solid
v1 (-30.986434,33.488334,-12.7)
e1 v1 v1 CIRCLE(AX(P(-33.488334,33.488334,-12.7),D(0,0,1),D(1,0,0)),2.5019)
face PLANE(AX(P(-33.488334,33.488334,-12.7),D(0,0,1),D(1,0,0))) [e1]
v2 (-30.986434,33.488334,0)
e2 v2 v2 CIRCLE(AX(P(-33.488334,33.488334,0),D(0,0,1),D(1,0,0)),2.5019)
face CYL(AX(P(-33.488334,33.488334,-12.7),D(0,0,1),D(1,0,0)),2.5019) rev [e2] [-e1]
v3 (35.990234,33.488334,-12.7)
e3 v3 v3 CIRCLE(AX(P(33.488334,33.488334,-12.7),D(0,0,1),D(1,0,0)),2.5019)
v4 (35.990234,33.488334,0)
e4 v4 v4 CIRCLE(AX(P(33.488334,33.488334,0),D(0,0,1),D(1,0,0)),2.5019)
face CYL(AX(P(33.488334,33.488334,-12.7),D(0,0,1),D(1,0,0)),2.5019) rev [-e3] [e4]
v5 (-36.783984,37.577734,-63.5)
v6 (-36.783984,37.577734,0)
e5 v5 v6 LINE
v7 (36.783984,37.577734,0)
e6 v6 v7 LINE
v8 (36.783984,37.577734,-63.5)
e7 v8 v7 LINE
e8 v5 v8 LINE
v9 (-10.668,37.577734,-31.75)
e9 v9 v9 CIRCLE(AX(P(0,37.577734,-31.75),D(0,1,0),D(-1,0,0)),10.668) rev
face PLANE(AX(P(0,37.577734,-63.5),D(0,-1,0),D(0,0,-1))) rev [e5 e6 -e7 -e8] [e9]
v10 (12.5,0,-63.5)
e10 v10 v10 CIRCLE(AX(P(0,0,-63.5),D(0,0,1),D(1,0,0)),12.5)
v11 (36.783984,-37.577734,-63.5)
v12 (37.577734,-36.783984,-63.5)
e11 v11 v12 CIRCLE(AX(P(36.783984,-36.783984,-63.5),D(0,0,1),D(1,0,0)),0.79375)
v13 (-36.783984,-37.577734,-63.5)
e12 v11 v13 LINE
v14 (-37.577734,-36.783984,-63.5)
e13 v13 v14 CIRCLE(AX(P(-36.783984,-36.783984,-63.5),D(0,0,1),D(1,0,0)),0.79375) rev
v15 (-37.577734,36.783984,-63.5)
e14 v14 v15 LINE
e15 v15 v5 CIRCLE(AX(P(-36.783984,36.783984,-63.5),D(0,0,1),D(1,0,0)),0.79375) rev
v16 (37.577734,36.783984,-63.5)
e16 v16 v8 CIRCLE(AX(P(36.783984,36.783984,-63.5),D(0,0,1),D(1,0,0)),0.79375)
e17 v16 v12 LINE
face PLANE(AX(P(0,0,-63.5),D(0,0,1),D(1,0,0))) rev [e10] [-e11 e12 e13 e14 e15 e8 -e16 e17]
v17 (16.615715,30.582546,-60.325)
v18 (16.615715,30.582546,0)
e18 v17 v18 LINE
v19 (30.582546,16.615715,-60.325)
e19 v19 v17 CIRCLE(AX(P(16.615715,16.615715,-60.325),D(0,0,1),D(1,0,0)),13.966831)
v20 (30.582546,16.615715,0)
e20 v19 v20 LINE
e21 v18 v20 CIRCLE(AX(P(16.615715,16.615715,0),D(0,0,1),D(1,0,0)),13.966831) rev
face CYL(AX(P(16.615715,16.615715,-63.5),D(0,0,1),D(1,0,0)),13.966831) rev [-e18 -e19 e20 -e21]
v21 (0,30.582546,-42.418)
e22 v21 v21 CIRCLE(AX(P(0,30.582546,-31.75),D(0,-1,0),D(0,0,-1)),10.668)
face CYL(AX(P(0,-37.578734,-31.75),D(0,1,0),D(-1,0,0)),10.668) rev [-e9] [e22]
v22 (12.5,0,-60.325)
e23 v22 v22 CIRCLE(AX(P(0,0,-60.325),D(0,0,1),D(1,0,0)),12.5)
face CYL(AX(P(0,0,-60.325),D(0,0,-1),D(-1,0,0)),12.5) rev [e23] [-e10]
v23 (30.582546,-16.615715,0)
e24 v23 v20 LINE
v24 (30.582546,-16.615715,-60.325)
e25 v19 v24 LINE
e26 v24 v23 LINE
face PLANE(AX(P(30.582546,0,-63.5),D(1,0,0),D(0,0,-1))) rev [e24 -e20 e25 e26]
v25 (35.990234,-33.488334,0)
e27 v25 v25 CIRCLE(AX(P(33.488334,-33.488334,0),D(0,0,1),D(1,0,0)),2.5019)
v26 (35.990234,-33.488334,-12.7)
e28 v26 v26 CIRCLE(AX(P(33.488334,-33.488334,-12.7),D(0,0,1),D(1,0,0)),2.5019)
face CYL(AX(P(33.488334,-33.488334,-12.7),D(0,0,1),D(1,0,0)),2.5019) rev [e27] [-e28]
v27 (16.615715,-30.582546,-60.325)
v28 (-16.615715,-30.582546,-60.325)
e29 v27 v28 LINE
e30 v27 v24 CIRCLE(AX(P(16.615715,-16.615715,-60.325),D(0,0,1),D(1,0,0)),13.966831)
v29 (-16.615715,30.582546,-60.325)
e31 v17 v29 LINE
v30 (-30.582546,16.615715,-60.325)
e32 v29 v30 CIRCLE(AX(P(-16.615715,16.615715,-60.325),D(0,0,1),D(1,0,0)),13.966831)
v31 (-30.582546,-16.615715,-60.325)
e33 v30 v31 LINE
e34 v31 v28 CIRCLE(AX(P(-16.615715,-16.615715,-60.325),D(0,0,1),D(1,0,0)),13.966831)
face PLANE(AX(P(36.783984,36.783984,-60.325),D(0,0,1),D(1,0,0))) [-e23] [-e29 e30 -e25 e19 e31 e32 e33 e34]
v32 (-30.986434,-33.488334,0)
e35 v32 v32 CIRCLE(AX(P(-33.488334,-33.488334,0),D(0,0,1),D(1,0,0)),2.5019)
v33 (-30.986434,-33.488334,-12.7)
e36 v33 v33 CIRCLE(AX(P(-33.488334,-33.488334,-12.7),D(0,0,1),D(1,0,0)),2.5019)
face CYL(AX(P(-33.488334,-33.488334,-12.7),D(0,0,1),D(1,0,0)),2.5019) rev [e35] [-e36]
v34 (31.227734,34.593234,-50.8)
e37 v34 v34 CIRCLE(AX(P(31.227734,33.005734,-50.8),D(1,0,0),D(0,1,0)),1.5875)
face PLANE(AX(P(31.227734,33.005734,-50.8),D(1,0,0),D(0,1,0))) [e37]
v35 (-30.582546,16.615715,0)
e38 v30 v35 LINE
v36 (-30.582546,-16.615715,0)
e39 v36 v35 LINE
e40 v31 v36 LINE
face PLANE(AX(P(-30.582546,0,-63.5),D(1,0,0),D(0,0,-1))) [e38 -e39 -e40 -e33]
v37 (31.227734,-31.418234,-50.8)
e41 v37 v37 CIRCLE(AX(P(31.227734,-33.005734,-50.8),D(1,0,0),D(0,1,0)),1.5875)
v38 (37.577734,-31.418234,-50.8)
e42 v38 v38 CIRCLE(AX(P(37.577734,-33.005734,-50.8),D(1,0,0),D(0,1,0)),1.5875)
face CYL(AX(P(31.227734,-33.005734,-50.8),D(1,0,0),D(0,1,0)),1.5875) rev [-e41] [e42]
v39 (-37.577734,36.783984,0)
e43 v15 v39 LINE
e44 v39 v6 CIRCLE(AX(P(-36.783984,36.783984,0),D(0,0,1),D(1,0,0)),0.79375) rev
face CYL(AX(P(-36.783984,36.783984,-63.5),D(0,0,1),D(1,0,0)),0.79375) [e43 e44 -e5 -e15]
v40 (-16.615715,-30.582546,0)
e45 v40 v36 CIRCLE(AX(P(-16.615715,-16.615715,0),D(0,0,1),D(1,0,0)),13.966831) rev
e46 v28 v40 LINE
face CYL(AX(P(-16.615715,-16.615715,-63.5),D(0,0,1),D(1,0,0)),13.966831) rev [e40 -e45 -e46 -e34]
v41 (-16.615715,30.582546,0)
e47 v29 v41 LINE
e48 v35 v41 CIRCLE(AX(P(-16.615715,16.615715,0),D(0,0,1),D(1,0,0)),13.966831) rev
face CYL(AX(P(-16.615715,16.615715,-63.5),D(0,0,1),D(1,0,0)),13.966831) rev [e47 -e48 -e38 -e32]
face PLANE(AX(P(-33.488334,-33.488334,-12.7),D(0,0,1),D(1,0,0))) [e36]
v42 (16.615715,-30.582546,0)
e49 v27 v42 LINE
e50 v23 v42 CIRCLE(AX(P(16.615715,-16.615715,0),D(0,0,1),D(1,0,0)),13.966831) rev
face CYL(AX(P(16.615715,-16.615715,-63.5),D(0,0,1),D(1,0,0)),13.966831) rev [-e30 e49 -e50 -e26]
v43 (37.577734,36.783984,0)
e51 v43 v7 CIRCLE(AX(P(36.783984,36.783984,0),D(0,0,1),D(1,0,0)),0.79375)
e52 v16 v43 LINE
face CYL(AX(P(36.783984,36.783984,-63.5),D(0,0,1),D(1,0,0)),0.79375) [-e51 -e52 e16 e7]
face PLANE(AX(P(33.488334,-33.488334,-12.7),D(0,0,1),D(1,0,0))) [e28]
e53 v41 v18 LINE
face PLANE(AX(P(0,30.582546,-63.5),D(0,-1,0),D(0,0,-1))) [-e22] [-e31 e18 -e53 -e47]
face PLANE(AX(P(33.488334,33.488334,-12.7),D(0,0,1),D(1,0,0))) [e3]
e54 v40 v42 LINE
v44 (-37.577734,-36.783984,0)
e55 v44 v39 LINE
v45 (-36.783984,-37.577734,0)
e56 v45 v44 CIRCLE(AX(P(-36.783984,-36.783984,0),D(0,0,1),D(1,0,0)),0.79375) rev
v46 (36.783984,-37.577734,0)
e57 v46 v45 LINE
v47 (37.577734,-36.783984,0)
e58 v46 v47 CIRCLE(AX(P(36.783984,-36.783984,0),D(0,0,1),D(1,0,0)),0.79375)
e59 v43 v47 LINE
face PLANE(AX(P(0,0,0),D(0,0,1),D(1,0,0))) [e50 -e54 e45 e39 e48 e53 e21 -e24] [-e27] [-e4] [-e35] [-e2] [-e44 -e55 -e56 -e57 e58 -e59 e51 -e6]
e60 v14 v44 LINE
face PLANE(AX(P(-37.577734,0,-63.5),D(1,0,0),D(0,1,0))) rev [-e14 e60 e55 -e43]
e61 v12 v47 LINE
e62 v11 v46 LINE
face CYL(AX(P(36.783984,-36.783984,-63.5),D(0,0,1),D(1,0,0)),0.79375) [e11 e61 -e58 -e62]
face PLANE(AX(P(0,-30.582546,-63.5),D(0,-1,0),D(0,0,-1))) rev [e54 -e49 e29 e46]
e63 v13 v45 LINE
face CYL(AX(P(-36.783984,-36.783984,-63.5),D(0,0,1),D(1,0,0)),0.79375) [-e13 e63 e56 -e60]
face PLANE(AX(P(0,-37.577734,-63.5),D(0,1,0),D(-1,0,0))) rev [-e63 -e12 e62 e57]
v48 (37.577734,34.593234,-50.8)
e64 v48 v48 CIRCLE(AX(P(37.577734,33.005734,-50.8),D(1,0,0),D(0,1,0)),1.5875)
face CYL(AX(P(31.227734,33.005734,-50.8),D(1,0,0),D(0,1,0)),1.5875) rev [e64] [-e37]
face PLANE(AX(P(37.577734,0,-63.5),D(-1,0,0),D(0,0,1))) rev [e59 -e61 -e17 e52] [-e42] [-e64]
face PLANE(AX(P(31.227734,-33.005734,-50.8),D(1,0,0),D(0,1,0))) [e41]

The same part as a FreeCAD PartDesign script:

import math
import FreeCAD as App
import Part
import Sketcher

V = App.Vector
Q = App.Units.Quantity

doc = App.newDocument("Part")
body = doc.addObject("PartDesign::Body", "Body")

# Sketch on XY plane
sketch1 = body.newObject("Sketcher::SketchObject", "Sketch")
sketch1.AttachmentSupport = (doc.getObject("XY_Plane"), [""])
sketch1.MapMode = "FlatFace"
sketch1.addGeometry([
    Part.LineSegment(V(37.6, -36.8, 0), V(37.6, 36.8, 0)),  # 0
    Part.ArcOfCircle(Part.Circle(V(36.8, 36.8, 0), V(0, 0, 1), 0.8), math.radians(0), math.radians(90)),  # 1
    Part.LineSegment(V(36.8, 37.6, 0), V(-36.8, 37.6, 0)),  # 2
    Part.ArcOfCircle(Part.Circle(V(-36.8, 36.8, 0), V(0, 0, 1), 0.8), math.radians(90), math.radians(180)),  # 3
    Part.LineSegment(V(-37.6, 36.8, 0), V(-37.6, -36.8, 0)),  # 4
    Part.ArcOfCircle(Part.Circle(V(-36.8, -36.8, 0), V(0, 0, 1), 0.8), math.radians(-180), math.radians(-90)),  # 5
    Part.LineSegment(V(-36.8, -37.6, 0), V(36.8, -37.6, 0)),  # 6
    Part.ArcOfCircle(Part.Circle(V(36.8, -36.8, 0), V(0, 0, 1), 0.8), math.radians(-90), math.radians(0)),  # 7
    Part.LineSegment(V(-16.6, 30.6, 0), V(16.6, 30.6, 0)),  # 8
    Part.ArcOfCircle(Part.Circle(V(16.6, 16.6, 0), V(0, 0, 1), 14), math.radians(0), math.radians(90)),  # 9
    Part.LineSegment(V(30.6, 16.6, 0), V(30.6, -16.6, 0)),  # 10
    Part.ArcOfCircle(Part.Circle(V(16.6, -16.6, 0), V(0, 0, 1), 14), math.radians(-90), math.radians(0)),  # 11
    Part.LineSegment(V(16.6, -30.6, 0), V(-16.6, -30.6, 0)),  # 12
    Part.ArcOfCircle(Part.Circle(V(-16.6, -16.6, 0), V(0, 0, 1), 14), math.radians(180), math.radians(270)),  # 13
    Part.LineSegment(V(-30.6, -16.6, 0), V(-30.6, 16.6, 0)),  # 14
    Part.ArcOfCircle(Part.Circle(V(-16.6, 16.6, 0), V(0, 0, 1), 14), math.radians(90), math.radians(180)),  # 15
], False)
sketch1.addConstraint([
    Sketcher.Constraint("Tangent", 0, 2, 1, 1),
    Sketcher.Constraint("Tangent", 1, 2, 2, 1),
    Sketcher.Constraint("Tangent", 2, 2, 3, 1),
    Sketcher.Constraint("Tangent", 3, 2, 4, 1),
    Sketcher.Constraint("Tangent", 4, 2, 5, 1),
    Sketcher.Constraint("Tangent", 5, 2, 6, 1),
    Sketcher.Constraint("Tangent", 6, 2, 7, 1),
    Sketcher.Constraint("Tangent", 7, 2, 0, 1),
    Sketcher.Constraint("Tangent", 8, 2, 9, 2),
    Sketcher.Constraint("Tangent", 9, 1, 10, 1),
    Sketcher.Constraint("Tangent", 10, 2, 11, 2),
    Sketcher.Constraint("Tangent", 11, 1, 12, 1),
    Sketcher.Constraint("Tangent", 12, 2, 13, 2),
    Sketcher.Constraint("Tangent", 13, 1, 14, 1),
    Sketcher.Constraint("Tangent", 14, 2, 15, 2),
    Sketcher.Constraint("Tangent", 15, 1, 8, 1),
    Sketcher.Constraint("Vertical", 0),
    Sketcher.Constraint("Horizontal", 2),
    Sketcher.Constraint("Vertical", 4),
    Sketcher.Constraint("Horizontal", 6),
    Sketcher.Constraint("Horizontal", 8),
    Sketcher.Constraint("Vertical", 10),
    Sketcher.Constraint("Horizontal", 12),
    Sketcher.Constraint("Vertical", 14),
    Sketcher.Constraint("Equal", 1, 3),
    Sketcher.Constraint("Equal", 3, 5),
    Sketcher.Constraint("Equal", 5, 7),
    Sketcher.Constraint("Equal", 9, 11),
    Sketcher.Constraint("Equal", 11, 13),
    Sketcher.Constraint("Equal", 13, 15),
    Sketcher.Constraint("Symmetric", 1, 3, 5, 3, -1, 1),
    Sketcher.Constraint("Symmetric", 9, 3, 13, 3, -1, 1),
    Sketcher.Constraint("Equal", 6, 0),
    Sketcher.Constraint("Equal", 12, 10),
    Sketcher.Constraint("Radius", 1, Q("0.03125 in")),
    Sketcher.Constraint("Radius", 9, 13.966831),
    Sketcher.Constraint("DistanceX", 8, 1, 8, 2, 33.23143),
    Sketcher.Constraint("DistanceX", 3, 3, 9, 3, 53.399699),
])
pad1 = body.newObject("PartDesign::Pad", "Pad")
pad1.Profile = sketch1
pad1.Length = Q("2.5 in")
pad1.Reversed = True

# Sketch on XY plane
sketch2 = body.newObject("Sketcher::SketchObject", "Sketch001")
sketch2.AttachmentSupport = (doc.getObject("XY_Plane"), [""])
sketch2.MapMode = "FlatFace"
sketch2.addGeometry([
    Part.Circle(V(33.5, 33.5, 0), V(0, 0, 1), 2.5),
    Part.Circle(V(33.5, -33.5, 0), V(0, 0, 1), 2.5),
    Part.Circle(V(-33.5, -33.5, 0), V(0, 0, 1), 2.5),
    Part.Circle(V(-33.5, 33.5, 0), V(0, 0, 1), 2.5),
], False)
sketch2.addConstraint([
    Sketcher.Constraint("Equal", 0, 1),
    Sketcher.Constraint("Equal", 1, 2),
    Sketcher.Constraint("Equal", 2, 3),
    Sketcher.Constraint("Symmetric", 0, 3, 2, 3, -1, 1),
    Sketcher.Constraint("Symmetric", 1, 3, 3, 3, -1, 1),
    Sketcher.Constraint("Symmetric", 1, 3, 2, 3, -2),
    Sketcher.Constraint("Diameter", 0, Q("0.197 in")),
    Sketcher.Constraint("DistanceX", -1, 1, 0, 3, 33.488334),
    Sketcher.Constraint("DistanceY", -1, 1, 0, 3, 33.488334),
])
pocket1 = body.newObject("PartDesign::Pocket", "Pocket")
pocket1.Profile = sketch2
pocket1.Length = Q("0.5 in")

# Sketch on XY plane
sketch3 = body.newObject("Sketcher::SketchObject", "Sketch002")
sketch3.AttachmentSupport = (doc.getObject("XY_Plane"), [""])
sketch3.MapMode = "FlatFace"
sketch3.AttachmentOffset = App.Placement(V(0, 0, -2.375 * 25.4), App.Rotation())
sketch3.addGeometry([
    Part.LineSegment(V(37.6, -36.8, 0), V(37.6, 36.8, 0)),  # 0
    Part.ArcOfCircle(Part.Circle(V(36.8, 36.8, 0), V(0, 0, 1), 0.8), math.radians(0), math.radians(90)),  # 1
    Part.LineSegment(V(36.8, 37.6, 0), V(-36.8, 37.6, 0)),  # 2
    Part.ArcOfCircle(Part.Circle(V(-36.8, 36.8, 0), V(0, 0, 1), 0.8), math.radians(90), math.radians(180)),  # 3
    Part.LineSegment(V(-37.6, 36.8, 0), V(-37.6, -36.8, 0)),  # 4
    Part.ArcOfCircle(Part.Circle(V(-36.8, -36.8, 0), V(0, 0, 1), 0.8), math.radians(-180), math.radians(-90)),  # 5
    Part.LineSegment(V(-36.8, -37.6, 0), V(36.8, -37.6, 0)),  # 6
    Part.ArcOfCircle(Part.Circle(V(36.8, -36.8, 0), V(0, 0, 1), 0.8), math.radians(-90), math.radians(0)),  # 7
    Part.Circle(V(0, 0, 0), V(0, 0, 1), 12.5),  # 8
], False)
sketch3.addConstraint([
    Sketcher.Constraint("Tangent", 0, 2, 1, 1),
    Sketcher.Constraint("Tangent", 1, 2, 2, 1),
    Sketcher.Constraint("Tangent", 2, 2, 3, 1),
    Sketcher.Constraint("Tangent", 3, 2, 4, 1),
    Sketcher.Constraint("Tangent", 4, 2, 5, 1),
    Sketcher.Constraint("Tangent", 5, 2, 6, 1),
    Sketcher.Constraint("Tangent", 6, 2, 7, 1),
    Sketcher.Constraint("Tangent", 7, 2, 0, 1),
    Sketcher.Constraint("Vertical", 0),
    Sketcher.Constraint("Horizontal", 2),
    Sketcher.Constraint("Vertical", 4),
    Sketcher.Constraint("Horizontal", 6),
    Sketcher.Constraint("Coincident", 8, 3, -1, 1),
    Sketcher.Constraint("Equal", 1, 3),
    Sketcher.Constraint("Equal", 3, 5),
    Sketcher.Constraint("Equal", 5, 7),
    Sketcher.Constraint("Symmetric", 1, 3, 5, 3, -1, 1),
    Sketcher.Constraint("Equal", 6, 0),
    Sketcher.Constraint("Radius", 1, Q("0.03125 in")),
    Sketcher.Constraint("Diameter", 8, 25.0),
    Sketcher.Constraint("DistanceX", 2, 2, 2, 1, 73.567968),
])
pad2 = body.newObject("PartDesign::Pad", "Pad001")
pad2.Profile = sketch3
pad2.Length = Q("0.125 in")
pad2.Reversed = True

# Sketch on YZ plane
sketch4 = body.newObject("Sketcher::SketchObject", "Sketch003")
sketch4.AttachmentSupport = (doc.getObject("YZ_Plane"), [""])
sketch4.MapMode = "FlatFace"
sketch4.AttachmentOffset = App.Placement(V(0, 0, 37.577734), App.Rotation())
sketch4.addGeometry([
    Part.Circle(V(33, -50.8, 0), V(0, 0, 1), 1.6),
    Part.Circle(V(-33, -50.8, 0), V(0, 0, 1), 1.6),
], False)
sketch4.addConstraint([
    Sketcher.Constraint("Equal", 0, 1),
    Sketcher.Constraint("Symmetric", 0, 3, 1, 3, -2),
    Sketcher.Constraint("Diameter", 0, Q("0.125 in")),
    Sketcher.Constraint("DistanceY", 0, 3, -1, 1, Q("2 in")),
    Sketcher.Constraint("DistanceX", -1, 1, 0, 3, 33.005734),
])
pocket2 = body.newObject("PartDesign::Pocket", "Pocket001")
pocket2.Profile = sketch4
pocket2.Length = Q("0.25 in")

# Sketch on XZ plane
sketch5 = body.newObject("Sketcher::SketchObject", "Sketch004")
sketch5.AttachmentSupport = (doc.getObject("XZ_Plane"), [""])
sketch5.MapMode = "FlatFace"
sketch5.AttachmentOffset = App.Placement(V(0, 0, -37.577734), App.Rotation())
sketch5.addGeometry(Part.Circle(V(0, -32, 0), V(0, 0, 1), 11), False)
sketch5.addConstraint([
    Sketcher.Constraint("PointOnObject", 0, 3, -2),
    Sketcher.Constraint("Diameter", 0, Q("0.84 in")),
    Sketcher.Constraint("DistanceY", 0, 3, -1, 1, Q("1.25 in")),
])
pocket3 = body.newObject("PartDesign::Pocket", "Pocket002")
pocket3.Profile = sketch5
pocket3.Type = "UpToFirst"
pocket3.Reversed = True

doc.recompute()
